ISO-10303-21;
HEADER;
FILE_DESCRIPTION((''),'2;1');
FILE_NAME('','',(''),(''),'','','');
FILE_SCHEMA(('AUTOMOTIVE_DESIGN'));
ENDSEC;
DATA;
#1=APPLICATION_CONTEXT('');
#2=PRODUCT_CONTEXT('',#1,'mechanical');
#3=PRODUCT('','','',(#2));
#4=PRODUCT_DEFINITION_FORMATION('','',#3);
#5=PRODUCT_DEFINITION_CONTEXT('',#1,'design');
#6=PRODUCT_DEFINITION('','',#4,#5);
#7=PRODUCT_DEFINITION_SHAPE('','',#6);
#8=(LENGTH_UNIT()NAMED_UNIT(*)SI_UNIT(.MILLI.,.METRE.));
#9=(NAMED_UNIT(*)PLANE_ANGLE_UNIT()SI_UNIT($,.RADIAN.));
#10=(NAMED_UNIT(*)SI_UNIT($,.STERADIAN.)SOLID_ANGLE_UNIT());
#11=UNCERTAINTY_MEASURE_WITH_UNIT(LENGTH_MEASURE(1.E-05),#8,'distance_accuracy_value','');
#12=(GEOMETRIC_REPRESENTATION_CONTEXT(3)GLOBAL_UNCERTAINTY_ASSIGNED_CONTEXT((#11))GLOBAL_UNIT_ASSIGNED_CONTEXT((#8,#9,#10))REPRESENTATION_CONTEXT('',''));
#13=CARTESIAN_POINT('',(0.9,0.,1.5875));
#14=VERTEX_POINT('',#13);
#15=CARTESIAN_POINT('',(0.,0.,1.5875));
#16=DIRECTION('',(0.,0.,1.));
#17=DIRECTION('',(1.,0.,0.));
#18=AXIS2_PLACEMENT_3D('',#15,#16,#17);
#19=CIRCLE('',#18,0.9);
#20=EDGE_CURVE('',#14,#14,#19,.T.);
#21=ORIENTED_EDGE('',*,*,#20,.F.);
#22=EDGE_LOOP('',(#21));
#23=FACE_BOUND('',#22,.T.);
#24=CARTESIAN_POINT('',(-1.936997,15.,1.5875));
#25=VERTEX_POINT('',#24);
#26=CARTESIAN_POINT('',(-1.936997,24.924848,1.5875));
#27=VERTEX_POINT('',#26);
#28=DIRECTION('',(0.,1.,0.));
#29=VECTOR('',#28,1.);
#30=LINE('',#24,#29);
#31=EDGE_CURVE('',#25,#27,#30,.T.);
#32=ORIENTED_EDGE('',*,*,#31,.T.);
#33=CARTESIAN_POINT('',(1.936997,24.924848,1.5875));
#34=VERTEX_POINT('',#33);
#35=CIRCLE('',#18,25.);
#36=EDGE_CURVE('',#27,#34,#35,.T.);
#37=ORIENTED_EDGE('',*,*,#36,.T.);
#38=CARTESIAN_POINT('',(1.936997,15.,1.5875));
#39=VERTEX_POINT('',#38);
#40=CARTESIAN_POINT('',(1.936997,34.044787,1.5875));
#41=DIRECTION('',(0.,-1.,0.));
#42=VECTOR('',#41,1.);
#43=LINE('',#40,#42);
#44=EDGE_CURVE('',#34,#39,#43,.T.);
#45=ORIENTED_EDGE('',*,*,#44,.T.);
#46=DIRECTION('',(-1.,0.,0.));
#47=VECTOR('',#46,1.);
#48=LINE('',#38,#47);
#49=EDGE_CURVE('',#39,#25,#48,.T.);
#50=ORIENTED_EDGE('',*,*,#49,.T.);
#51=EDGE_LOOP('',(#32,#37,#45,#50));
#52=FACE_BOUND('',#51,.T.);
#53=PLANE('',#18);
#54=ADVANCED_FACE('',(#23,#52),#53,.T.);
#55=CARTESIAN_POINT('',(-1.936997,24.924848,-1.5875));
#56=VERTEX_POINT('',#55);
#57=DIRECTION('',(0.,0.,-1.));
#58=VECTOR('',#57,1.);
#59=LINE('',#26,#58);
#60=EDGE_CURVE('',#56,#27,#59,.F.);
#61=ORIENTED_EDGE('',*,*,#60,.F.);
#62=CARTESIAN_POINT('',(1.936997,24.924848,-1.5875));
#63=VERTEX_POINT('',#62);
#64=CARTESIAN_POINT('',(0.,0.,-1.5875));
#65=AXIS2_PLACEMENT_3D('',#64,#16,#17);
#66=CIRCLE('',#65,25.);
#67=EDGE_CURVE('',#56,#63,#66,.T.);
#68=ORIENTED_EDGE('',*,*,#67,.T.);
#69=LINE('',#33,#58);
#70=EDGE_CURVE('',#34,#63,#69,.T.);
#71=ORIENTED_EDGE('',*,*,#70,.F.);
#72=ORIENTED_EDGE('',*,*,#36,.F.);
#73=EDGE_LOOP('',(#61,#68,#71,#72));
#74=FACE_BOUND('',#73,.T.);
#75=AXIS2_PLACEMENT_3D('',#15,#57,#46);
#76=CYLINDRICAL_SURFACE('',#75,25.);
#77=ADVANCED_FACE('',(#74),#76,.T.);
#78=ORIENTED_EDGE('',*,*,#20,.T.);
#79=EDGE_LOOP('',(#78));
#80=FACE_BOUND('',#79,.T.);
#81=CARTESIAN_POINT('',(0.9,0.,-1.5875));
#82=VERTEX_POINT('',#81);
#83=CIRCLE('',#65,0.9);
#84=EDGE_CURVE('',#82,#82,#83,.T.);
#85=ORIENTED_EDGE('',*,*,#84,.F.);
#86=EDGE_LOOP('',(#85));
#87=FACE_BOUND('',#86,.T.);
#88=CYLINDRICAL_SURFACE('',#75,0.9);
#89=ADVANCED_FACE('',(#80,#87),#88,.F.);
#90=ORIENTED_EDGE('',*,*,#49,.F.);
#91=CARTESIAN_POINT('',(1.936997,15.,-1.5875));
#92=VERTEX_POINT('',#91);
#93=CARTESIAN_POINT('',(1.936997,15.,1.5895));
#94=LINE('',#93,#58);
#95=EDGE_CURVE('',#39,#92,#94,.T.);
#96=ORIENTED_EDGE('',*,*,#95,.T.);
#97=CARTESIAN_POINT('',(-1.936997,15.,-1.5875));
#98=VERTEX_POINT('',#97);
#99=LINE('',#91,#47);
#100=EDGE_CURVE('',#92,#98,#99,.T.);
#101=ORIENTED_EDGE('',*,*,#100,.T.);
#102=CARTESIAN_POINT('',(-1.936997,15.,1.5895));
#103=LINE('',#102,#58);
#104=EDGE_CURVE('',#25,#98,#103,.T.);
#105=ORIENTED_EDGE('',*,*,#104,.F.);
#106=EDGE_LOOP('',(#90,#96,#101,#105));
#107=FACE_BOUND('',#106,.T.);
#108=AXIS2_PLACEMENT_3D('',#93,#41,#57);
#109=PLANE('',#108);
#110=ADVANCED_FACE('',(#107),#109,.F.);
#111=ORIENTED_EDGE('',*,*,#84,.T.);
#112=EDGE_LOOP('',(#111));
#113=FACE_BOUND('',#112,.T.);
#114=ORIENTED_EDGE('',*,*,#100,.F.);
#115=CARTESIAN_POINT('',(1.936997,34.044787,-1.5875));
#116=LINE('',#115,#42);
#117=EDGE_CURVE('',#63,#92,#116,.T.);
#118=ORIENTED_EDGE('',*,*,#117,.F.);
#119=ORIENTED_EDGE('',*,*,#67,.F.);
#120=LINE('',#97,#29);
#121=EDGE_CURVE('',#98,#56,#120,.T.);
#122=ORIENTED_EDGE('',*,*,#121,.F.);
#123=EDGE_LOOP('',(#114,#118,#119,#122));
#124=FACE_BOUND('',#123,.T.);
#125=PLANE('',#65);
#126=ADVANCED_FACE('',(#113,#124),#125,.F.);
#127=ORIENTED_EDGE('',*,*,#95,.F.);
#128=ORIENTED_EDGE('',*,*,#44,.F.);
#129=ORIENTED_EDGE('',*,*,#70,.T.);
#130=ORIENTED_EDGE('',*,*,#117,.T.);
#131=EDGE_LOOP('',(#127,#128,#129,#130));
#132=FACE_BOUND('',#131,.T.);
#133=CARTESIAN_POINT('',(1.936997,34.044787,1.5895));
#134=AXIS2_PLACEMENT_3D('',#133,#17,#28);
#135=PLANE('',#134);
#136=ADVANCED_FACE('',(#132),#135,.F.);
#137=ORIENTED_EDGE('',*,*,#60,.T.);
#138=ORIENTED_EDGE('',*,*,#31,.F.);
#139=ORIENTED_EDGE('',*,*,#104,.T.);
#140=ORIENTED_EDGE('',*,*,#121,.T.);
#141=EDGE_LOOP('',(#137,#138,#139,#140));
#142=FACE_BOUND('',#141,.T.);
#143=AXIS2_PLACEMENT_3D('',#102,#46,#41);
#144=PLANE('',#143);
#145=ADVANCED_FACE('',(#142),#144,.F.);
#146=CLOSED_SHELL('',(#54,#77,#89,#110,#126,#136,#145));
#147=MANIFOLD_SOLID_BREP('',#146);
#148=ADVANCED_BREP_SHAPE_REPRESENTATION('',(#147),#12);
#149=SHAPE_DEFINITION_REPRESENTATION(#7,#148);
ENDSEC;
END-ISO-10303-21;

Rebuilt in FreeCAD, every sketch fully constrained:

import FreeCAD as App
import Part
import Sketcher

V = App.Vector


def add_polygon(sketch, points):
    """Adds a closed chain of lines whose ends are joined by coincident constraints."""
    first, n = sketch.GeometryCount, len(points)
    for a, b in zip(points, points[1:] + points[:1]):
        sketch.addGeometry(Part.LineSegment(App.Vector(*a, 0), App.Vector(*b, 0)), False)
    for i in range(n):
        sketch.addConstraint(Sketcher.Constraint("Coincident", first + i, 2, first + (i + 1) % n, 1))

doc = App.newDocument("Part")
body = doc.addObject("PartDesign::Body", "Body")

# Sketch on XY plane
sketch1 = body.newObject("Sketcher::SketchObject", "Sketch")
sketch1.AttachmentSupport = (doc.getObject("XY_Plane"), [""])
sketch1.MapMode = "FlatFace"
sketch1.addGeometry(Part.Circle(V(0, 0, 0), V(0, 0, 1), 25), False)
sketch1.addGeometry(Part.Circle(V(0, 0, 0), V(0, 0, 1), 0.9), False)
sketch1.addConstraint(Sketcher.Constraint("Coincident", 0, 3, -1, 1))
sketch1.addConstraint(Sketcher.Constraint("Coincident", 1, 3, -1, 1))
sketch1.addConstraint(Sketcher.Constraint("Diameter", 0, 50.0))
sketch1.addConstraint(Sketcher.Constraint("Diameter", 1, 1.8))
pad1 = body.newObject("PartDesign::Pad", "Pad")
pad1.Profile = sketch1
pad1.Length = 3.175
pad1.Midplane = True

# Sketch on XY plane
sketch2 = body.newObject("Sketcher::SketchObject", "Sketch001")
sketch2.AttachmentSupport = (doc.getObject("XY_Plane"), [""])
sketch2.MapMode = "FlatFace"
sketch2.AttachmentOffset = App.Placement(V(0, 0, -1.5875), App.Rotation())
add_polygon(sketch2, [(1.936997, 34.044787), (1.936997, 15), (-1.936997, 15), (-1.936997, 34.044787)])  # lines 0-3
sketch2.addConstraint(Sketcher.Constraint("Vertical", 0))
sketch2.addConstraint(Sketcher.Constraint("Horizontal", 1))
sketch2.addConstraint(Sketcher.Constraint("Vertical", 2))
sketch2.addConstraint(Sketcher.Constraint("Horizontal", 3))
sketch2.addConstraint(Sketcher.Constraint("DistanceY", -1, 1, 0, 2, 15.0))
sketch2.addConstraint(Sketcher.Constraint("DistanceX", 1, 2, 1, 1, 3.873994))
sketch2.addConstraint(Sketcher.Constraint("DistanceY", 0, 2, 0, 1, 19.044787))
sketch2.addConstraint(Sketcher.Constraint("DistanceX", -1, 1, 0, 2, 1.936997))
pocket1 = body.newObject("PartDesign::Pocket", "Pocket")
pocket1.Profile = sketch2
pocket1.Type = "UpToFirst"
pocket1.Reversed = True

doc.recompute()
